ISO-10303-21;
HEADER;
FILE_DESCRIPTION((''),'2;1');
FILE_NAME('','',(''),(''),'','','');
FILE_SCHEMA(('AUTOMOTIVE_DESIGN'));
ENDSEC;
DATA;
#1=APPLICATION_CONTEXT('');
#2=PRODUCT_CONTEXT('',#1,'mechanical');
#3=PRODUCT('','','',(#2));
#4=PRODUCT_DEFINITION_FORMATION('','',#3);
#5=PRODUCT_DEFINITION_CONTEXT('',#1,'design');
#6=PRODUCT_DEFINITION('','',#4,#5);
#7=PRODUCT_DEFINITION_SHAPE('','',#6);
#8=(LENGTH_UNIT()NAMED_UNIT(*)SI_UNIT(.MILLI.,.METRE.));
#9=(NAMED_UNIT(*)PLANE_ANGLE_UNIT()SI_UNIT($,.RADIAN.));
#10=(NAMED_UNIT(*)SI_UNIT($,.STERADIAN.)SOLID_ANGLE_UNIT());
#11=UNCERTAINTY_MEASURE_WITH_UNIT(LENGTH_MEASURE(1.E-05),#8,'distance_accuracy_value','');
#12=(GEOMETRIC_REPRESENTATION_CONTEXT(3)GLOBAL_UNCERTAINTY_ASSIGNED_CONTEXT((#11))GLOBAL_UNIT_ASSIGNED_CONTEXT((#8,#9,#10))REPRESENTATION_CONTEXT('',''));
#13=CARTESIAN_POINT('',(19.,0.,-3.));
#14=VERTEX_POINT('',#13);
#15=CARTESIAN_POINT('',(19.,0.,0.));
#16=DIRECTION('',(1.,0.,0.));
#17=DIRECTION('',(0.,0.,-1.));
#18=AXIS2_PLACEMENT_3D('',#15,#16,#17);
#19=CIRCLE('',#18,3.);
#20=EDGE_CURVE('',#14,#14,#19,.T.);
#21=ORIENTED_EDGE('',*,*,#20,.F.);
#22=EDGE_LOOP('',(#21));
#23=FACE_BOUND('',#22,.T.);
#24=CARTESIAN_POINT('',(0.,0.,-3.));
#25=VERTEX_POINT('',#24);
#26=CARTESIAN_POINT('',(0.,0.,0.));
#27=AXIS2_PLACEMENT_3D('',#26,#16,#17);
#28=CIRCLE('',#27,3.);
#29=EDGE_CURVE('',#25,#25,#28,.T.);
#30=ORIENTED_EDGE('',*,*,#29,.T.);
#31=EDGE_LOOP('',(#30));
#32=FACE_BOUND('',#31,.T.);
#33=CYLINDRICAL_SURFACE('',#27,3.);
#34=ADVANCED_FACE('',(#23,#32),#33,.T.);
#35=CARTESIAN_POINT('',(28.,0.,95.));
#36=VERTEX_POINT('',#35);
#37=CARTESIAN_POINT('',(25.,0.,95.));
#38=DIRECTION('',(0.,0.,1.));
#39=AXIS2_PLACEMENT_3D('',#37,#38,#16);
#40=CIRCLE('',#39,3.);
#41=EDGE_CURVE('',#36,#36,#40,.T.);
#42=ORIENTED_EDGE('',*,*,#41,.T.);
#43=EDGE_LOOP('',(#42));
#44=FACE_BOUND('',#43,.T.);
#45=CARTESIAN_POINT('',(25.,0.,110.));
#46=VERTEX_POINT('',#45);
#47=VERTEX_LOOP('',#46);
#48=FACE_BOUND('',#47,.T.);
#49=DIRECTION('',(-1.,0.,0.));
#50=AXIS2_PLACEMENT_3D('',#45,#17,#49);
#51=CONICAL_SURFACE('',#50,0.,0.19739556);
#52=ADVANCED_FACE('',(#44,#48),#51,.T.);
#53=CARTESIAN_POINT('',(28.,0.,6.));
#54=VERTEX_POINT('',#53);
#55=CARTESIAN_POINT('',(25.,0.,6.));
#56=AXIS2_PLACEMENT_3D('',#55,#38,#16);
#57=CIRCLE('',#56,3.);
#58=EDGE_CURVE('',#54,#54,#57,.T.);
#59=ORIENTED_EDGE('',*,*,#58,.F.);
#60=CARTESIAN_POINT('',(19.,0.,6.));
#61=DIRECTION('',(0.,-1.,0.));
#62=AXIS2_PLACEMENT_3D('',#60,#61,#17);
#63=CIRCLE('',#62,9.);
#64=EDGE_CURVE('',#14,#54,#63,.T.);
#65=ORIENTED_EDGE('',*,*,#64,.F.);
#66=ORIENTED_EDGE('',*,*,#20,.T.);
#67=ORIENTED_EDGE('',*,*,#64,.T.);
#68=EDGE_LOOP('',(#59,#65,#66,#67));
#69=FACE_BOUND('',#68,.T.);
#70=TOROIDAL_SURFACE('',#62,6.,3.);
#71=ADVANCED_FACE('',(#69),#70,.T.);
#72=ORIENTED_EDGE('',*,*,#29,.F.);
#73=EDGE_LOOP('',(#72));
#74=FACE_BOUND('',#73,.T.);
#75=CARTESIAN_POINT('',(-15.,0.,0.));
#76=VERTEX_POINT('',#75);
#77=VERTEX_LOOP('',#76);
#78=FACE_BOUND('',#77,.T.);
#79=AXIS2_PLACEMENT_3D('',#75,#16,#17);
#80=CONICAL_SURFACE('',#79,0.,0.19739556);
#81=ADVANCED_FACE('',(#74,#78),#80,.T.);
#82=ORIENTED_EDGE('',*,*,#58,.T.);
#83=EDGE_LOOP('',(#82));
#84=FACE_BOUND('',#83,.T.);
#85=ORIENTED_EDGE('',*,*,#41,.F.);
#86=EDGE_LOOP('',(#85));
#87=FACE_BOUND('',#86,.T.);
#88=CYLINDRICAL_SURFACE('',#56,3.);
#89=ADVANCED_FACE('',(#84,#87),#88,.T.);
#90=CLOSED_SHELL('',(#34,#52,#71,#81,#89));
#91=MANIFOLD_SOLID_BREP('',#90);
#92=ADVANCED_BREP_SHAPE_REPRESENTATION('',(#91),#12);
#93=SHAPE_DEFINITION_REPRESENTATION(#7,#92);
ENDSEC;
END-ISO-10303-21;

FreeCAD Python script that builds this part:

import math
import FreeCAD as App
import Part
import Sketcher

V = App.Vector
Q = App.Units.Quantity

doc = App.newDocument("Part")
body = doc.addObject("PartDesign::Body", "Body")

# Sketch on YZ plane
sketch1 = doc.addObject("Sketcher::SketchObject", "Sketch")
body.addObject(sketch1)
sketch1.AttachmentSupport = (doc.YZ_Plane, [""])
sketch1.MapMode = "FlatFace"
sketch1.addGeometry(Part.Circle(V(0, 0, 0), V(0, 0, 1), 3), False)
sketch1.addConstraint(Sketcher.Constraint("Coincident", 0, 3, -1, 1))
sketch1.addConstraint(Sketcher.Constraint("Diameter", 0, Q("6 mm")))

# Sketch on XZ plane
sketch2 = doc.addObject("Sketcher::SketchObject", "Sketch001")
body.addObject(sketch2)
sketch2.AttachmentSupport = (doc.XZ_Plane, [""])
sketch2.MapMode = "FlatFace"
sketch2.addGeometry(Part.LineSegment(V(0, 0, 0), V(19, 0, 0)), False)
sketch2.addGeometry(Part.ArcOfCircle(Part.Circle(V(19, 6, 0), V(0, 0, 1), 6), math.radians(-90), math.radians(0)), False)
sketch2.addGeometry(Part.LineSegment(V(25, 6, 0), V(25, 95, 0)), False)
sketch2.addConstraint(Sketcher.Constraint("Tangent", 0, 2, 1, 1))
sketch2.addConstraint(Sketcher.Constraint("Tangent", 1, 2, 2, 1))
sketch2.addConstraint(Sketcher.Constraint("Horizontal", 0))
sketch2.addConstraint(Sketcher.Constraint("Vertical", 2))
sketch2.addConstraint(Sketcher.Constraint("Coincident", 0, 1, -1, 1))
sketch2.addConstraint(Sketcher.Constraint("Radius", 1, Q("6 mm")))
sketch2.addConstraint(Sketcher.Constraint("DistanceX", 0, 1, 0, 2, Q("19 mm")))
sketch2.addConstraint(Sketcher.Constraint("DistanceY", 2, 1, 2, 2, Q("89 mm")))
doc.recompute()

additivepipe = doc.addObject("PartDesign::AdditivePipe", "AdditivePipe")
body.addObject(additivepipe)
additivepipe.Profile = sketch1
additivepipe.Spine = (sketch2, ["Edge1", "Edge2", "Edge3"])

# Sketch on XZ plane
sketch3 = doc.addObject("Sketcher::SketchObject", "Sketch002")
body.addObject(sketch3)
sketch3.AttachmentSupport = (doc.XZ_Plane, [""])
sketch3.MapMode = "FlatFace"
sketch3.addGeometry(Part.LineSegment(V(0, 0, 0), V(-15, 0, 0)), False)
sketch3.addGeometry(Part.LineSegment(V(-15, 0, 0), V(0, 3, 0)), False)
sketch3.addGeometry(Part.LineSegment(V(0, 3, 0), V(0, 0, 0)), False)
sketch3.addConstraint(Sketcher.Constraint("Coincident", 0, 2, 1, 1))
sketch3.addConstraint(Sketcher.Constraint("Coincident", 1, 2, 2, 1))
sketch3.addConstraint(Sketcher.Constraint("Coincident", 2, 2, 0, 1))
sketch3.addConstraint(Sketcher.Constraint("Horizontal", 0))
sketch3.addConstraint(Sketcher.Constraint("Vertical", 2))
sketch3.addConstraint(Sketcher.Constraint("Coincident", 2, 2, -1, 1))
sketch3.addConstraint(Sketcher.Constraint("DistanceX", 0, 2, 0, 1, Q("15 mm")))
sketch3.addConstraint(Sketcher.Constraint("DistanceY", 2, 2, 2, 1, Q("3 mm")))
revolution = doc.addObject("PartDesign::Revolution", "Revolution")
body.addObject(revolution)
revolution.Profile = sketch3
revolution.ReferenceAxis = (sketch3, ["H_Axis"])
revolution.Angle = 360

# Sketch on XZ plane
sketch4 = doc.addObject("Sketcher::SketchObject", "Sketch003")
body.addObject(sketch4)
sketch4.AttachmentSupport = (doc.XZ_Plane, [""])
sketch4.MapMode = "FlatFace"
sketch4.addGeometry(Part.LineSegment(V(25, 95, 0), V(25, 110, 0)), False)
sketch4.addGeometry(Part.LineSegment(V(25, 110, 0), V(28, 95, 0)), False)
sketch4.addGeometry(Part.LineSegment(V(28, 95, 0), V(25, 95, 0)), False)
sketch4.addGeometry(Part.LineSegment(V(25, 95, 0), V(25, 110, 0)), True)  # axis
sketch4.addConstraint(Sketcher.Constraint("Coincident", 0, 2, 1, 1))
sketch4.addConstraint(Sketcher.Constraint("Coincident", 1, 2, 2, 1))
sketch4.addConstraint(Sketcher.Constraint("Coincident", 2, 2, 0, 1))
sketch4.addConstraint(Sketcher.Constraint("Vertical", 0))
sketch4.addConstraint(Sketcher.Constraint("Horizontal", 2))
sketch4.addConstraint(Sketcher.Constraint("Vertical", 3))
sketch4.addConstraint(Sketcher.Constraint("Coincident", 3, 1, 2, 2))
sketch4.addConstraint(Sketcher.Constraint("Equal", 0, 3))
sketch4.addConstraint(Sketcher.Constraint("DistanceX", 2, 2, 2, 1, Q("3 mm")))
sketch4.addConstraint(Sketcher.Constraint("DistanceY", 0, 1, 0, 2, Q("15 mm")))
sketch4.addConstraint(Sketcher.Constraint("DistanceX", -1, 1, 0, 2, Q("25 mm")))
sketch4.addConstraint(Sketcher.Constraint("DistanceY", -1, 1, 0, 2, Q("110 mm")))
revolution2 = doc.addObject("PartDesign::Revolution", "Revolution001")
body.addObject(revolution2)
revolution2.Profile = sketch4
revolution2.ReferenceAxis = (sketch4, ["Axis0"])
revolution2.Angle = 360

doc.recompute()
